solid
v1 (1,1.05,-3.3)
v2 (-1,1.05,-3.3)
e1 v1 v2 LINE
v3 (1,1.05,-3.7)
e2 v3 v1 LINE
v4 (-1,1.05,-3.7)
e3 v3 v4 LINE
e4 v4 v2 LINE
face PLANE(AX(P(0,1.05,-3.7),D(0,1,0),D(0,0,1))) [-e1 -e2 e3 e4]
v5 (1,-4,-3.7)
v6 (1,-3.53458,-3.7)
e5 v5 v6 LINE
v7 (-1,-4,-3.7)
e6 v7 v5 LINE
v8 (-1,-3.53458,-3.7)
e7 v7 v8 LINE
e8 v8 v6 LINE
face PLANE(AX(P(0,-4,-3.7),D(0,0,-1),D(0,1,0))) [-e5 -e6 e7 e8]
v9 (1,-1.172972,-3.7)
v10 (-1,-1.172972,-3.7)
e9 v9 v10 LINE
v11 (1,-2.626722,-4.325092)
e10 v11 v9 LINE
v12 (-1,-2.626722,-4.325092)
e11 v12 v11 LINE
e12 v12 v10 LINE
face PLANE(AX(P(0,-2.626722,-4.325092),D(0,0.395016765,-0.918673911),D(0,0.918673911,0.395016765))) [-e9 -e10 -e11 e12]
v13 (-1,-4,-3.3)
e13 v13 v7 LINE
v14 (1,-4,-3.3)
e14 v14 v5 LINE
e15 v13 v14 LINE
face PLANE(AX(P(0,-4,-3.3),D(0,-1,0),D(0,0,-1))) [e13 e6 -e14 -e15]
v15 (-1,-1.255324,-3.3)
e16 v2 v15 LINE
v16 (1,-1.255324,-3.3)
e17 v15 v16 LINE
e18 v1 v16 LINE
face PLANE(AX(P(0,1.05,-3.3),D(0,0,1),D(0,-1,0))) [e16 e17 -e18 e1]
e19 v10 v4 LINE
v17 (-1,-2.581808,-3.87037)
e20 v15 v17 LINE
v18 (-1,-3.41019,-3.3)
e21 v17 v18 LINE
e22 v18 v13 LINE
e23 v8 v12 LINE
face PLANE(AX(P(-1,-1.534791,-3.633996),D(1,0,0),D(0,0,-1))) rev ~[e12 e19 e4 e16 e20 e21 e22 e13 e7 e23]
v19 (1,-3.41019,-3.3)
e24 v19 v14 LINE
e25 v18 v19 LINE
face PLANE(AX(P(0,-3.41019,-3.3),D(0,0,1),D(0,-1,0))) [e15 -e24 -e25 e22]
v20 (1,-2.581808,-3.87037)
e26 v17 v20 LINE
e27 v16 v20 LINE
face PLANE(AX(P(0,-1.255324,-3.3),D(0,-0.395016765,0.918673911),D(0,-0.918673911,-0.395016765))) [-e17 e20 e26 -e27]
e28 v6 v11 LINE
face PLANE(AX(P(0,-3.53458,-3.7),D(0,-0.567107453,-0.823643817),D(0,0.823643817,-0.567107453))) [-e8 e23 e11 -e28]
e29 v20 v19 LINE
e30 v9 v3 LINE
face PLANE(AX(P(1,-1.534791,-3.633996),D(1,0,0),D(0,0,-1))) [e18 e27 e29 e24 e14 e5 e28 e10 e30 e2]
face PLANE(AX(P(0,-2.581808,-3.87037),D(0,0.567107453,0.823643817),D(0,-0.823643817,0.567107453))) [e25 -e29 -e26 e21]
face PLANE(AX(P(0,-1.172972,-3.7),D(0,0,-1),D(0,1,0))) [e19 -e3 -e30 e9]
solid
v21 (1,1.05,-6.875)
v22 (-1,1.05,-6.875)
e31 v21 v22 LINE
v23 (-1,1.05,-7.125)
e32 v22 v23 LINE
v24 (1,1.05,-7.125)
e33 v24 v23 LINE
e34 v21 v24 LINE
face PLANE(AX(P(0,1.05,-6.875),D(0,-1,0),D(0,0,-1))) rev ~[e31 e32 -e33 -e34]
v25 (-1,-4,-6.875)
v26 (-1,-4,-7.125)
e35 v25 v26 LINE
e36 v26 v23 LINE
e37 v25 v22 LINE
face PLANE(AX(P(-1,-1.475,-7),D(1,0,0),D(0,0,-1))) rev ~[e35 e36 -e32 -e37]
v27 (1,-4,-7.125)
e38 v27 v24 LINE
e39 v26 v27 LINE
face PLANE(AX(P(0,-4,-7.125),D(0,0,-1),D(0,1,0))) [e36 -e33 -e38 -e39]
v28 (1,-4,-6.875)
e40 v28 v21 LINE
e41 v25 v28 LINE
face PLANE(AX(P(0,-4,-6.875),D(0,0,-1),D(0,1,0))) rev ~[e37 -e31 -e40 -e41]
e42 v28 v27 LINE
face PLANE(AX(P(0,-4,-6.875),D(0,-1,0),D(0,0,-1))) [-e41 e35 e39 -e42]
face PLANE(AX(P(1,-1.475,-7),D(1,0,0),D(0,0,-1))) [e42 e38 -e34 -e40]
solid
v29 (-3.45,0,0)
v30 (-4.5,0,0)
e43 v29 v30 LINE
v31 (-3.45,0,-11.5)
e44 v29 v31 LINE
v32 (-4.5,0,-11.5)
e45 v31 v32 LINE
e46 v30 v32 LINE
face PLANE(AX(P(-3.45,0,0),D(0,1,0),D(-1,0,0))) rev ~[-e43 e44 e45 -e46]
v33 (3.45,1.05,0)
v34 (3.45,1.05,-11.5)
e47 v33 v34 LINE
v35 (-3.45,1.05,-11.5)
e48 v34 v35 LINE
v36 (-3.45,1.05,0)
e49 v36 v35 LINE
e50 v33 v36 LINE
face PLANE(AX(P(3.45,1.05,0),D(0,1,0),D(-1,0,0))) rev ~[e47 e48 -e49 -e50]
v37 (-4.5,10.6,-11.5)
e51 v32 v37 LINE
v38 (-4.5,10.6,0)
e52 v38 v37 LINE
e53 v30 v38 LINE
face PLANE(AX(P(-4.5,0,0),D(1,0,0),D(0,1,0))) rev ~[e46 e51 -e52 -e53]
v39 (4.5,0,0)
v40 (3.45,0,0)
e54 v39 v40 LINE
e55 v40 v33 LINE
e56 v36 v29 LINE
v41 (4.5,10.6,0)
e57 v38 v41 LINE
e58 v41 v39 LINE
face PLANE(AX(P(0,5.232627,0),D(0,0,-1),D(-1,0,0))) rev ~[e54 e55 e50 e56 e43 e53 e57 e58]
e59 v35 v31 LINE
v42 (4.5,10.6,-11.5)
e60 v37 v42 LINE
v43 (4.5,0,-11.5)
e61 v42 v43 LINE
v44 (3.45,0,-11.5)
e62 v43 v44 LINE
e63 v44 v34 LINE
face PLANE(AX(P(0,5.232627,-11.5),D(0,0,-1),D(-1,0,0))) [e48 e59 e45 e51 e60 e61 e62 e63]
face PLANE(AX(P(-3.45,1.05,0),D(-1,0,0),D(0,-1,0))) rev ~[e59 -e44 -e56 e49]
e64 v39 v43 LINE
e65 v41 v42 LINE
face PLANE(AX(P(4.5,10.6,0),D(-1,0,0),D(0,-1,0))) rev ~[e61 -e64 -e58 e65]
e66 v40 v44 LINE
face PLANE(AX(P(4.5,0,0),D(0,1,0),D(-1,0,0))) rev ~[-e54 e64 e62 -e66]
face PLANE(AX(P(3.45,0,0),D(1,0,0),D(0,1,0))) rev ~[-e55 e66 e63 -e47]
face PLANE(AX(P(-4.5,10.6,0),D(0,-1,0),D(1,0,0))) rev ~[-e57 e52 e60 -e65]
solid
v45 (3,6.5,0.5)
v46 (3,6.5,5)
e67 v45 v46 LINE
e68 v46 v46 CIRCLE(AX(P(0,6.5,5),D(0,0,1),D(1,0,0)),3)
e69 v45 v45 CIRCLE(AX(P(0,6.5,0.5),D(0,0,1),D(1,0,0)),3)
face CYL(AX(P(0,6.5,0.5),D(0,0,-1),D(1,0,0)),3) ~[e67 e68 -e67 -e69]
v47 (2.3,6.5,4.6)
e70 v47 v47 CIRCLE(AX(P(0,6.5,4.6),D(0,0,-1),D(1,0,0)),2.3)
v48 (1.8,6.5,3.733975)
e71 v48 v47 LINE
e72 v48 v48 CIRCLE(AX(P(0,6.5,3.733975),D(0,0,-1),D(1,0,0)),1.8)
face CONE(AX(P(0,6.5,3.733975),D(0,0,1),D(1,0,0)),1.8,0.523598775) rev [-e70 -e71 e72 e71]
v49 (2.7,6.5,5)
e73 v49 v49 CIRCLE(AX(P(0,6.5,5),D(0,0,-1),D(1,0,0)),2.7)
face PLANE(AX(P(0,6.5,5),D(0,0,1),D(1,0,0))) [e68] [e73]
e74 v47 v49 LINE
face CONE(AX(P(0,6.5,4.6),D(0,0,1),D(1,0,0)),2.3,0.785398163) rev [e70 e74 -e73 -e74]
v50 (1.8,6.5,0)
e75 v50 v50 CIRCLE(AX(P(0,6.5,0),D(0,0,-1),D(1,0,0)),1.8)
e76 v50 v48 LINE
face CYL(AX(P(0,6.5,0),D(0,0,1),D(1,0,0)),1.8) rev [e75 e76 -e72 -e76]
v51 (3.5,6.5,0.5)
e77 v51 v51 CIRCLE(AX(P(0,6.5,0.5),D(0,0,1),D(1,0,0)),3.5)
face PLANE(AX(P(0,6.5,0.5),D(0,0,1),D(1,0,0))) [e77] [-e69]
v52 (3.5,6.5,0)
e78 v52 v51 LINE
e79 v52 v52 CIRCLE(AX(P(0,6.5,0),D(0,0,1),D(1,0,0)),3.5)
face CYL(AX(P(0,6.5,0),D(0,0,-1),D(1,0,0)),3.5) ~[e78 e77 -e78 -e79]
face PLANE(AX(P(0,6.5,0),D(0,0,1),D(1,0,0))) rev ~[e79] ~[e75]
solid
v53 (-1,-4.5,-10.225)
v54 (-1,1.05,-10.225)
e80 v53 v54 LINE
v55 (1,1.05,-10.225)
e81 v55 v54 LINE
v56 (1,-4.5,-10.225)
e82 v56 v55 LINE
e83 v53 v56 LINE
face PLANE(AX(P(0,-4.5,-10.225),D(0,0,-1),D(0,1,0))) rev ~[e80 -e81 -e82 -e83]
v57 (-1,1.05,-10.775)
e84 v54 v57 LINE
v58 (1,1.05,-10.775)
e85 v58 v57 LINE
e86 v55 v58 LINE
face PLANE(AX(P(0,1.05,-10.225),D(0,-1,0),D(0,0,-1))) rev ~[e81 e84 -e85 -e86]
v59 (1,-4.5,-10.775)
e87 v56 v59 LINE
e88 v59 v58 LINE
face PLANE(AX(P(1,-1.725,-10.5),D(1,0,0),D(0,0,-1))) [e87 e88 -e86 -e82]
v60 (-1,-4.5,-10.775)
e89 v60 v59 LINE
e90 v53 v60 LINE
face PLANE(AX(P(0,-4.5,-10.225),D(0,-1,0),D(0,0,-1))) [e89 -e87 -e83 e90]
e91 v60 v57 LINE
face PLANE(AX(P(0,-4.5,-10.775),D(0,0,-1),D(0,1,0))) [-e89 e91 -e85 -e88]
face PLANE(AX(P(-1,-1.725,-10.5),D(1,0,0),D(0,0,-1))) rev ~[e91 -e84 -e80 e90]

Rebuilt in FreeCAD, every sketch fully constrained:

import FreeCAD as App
import Part
import Sketcher

V = App.Vector
Q = App.Units.Quantity

doc = App.newDocument("Part")
params = doc.addObject("Spreadsheet::Sheet", "Params")
for row, (alias, value) in enumerate([
    ("sketch1_width", "9 mm"),
    ("sketch1_width2", "6.9 mm"),
    ("sketch1_height", "10.6 mm"),
    ("pad1_length", "11.5 mm"),
    ("sketch2_diameter", "7 mm"),
    ("pad2_length", "0.5 mm"),
    ("sketch3_diameter", "6 mm"),
    ("pad3_length", "4.5 mm"),
    ("sketch4_height", "5 mm"),
    ("sketch4_length", "1 mm"),
    ("sketch4_width", "1.8 mm"),
    ("sketch4_width2", "2.7 mm"),
    ("groove_angle", "360 deg"),
    ("sketch5_height", "0.4 mm"),
    ("pad4_length", "2 mm"),
    ("sketch6_width", "5.05 mm"),
    ("sketch6_height", "0.25 mm"),
    ("pad5_length", "2 mm"),
    ("sketch7_width", "5.55 mm"),
    ("sketch7_height", "0.55 mm"),
    ("pad6_length", "2 mm"),
], start=1):
    params.set(f"A{row}", alias)
    params.set(f"B{row}", "=" + value)
    params.setAlias(f"B{row}", alias)

body = doc.addObject("PartDesign::Body", "Body")

sketch1 = body.newObject("Sketcher::SketchObject", "Sketch")
sketch1.AttachmentSupport = (doc.getObject("XY_Plane"), [""])
sketch1.MapMode = "FlatFace"
sketch1.addGeometry(Part.LineSegment(V(4.5, 10.6, 0), V(-4.5, 10.6, 0)), False)
sketch1.addGeometry(Part.LineSegment(V(-4.5, 10.6, 0), V(-4.5, 0, 0)), False)
sketch1.addGeometry(Part.LineSegment(V(-4.5, 0, 0), V(-3.45, 0, 0)), False)
sketch1.addGeometry(Part.LineSegment(V(-3.45, 0, 0), V(-3.45, 1.05, 0)), False)
sketch1.addGeometry(Part.LineSegment(V(-3.45, 1.05, 0), V(3.45, 1.05, 0)), False)
sketch1.addGeometry(Part.LineSegment(V(3.45, 1.05, 0), V(3.45, 0, 0)), False)
sketch1.addGeometry(Part.LineSegment(V(3.45, 0, 0), V(4.5, 0, 0)), False)
sketch1.addGeometry(Part.LineSegment(V(4.5, 0, 0), V(4.5, 10.6, 0)), False)
sketch1.addConstraint(Sketcher.Constraint("Coincident", 0, 2, 1, 1))
sketch1.addConstraint(Sketcher.Constraint("Coincident", 1, 2, 2, 1))
sketch1.addConstraint(Sketcher.Constraint("Coincident", 2, 2, 3, 1))
sketch1.addConstraint(Sketcher.Constraint("Coincident", 3, 2, 4, 1))
sketch1.addConstraint(Sketcher.Constraint("Coincident", 4, 2, 5, 1))
sketch1.addConstraint(Sketcher.Constraint("Coincident", 5, 2, 6, 1))
sketch1.addConstraint(Sketcher.Constraint("Coincident", 6, 2, 7, 1))
sketch1.addConstraint(Sketcher.Constraint("Coincident", 7, 2, 0, 1))
sketch1.addConstraint(Sketcher.Constraint("Horizontal", 0))
sketch1.addConstraint(Sketcher.Constraint("Vertical", 1))
sketch1.addConstraint(Sketcher.Constraint("Horizontal", 2))
sketch1.addConstraint(Sketcher.Constraint("Vertical", 3))
sketch1.addConstraint(Sketcher.Constraint("Horizontal", 4))
sketch1.addConstraint(Sketcher.Constraint("Vertical", 5))
sketch1.addConstraint(Sketcher.Constraint("Horizontal", 6))
sketch1.addConstraint(Sketcher.Constraint("Vertical", 7))
sketch1.addConstraint(Sketcher.Constraint("Symmetric", 2, 2, 5, 2, -1, 1))
sketch1.addConstraint(Sketcher.Constraint("Symmetric", 1, 2, 6, 2, -2))
sketch1.addConstraint(Sketcher.Constraint("Equal", 6, 3))
sketch1.addConstraint(Sketcher.Constraint("DistanceX", 0, 2, 0, 1, Q("9 mm")))
sketch1.addConstraint(Sketcher.Constraint("DistanceX", 4, 1, 4, 2, Q("6.9 mm")))
sketch1.addConstraint(Sketcher.Constraint("DistanceY", 1, 2, 1, 1, Q("10.6 mm")))
sketch1.setExpression("Constraints[19]", "Params.sketch1_width")
sketch1.setExpression("Constraints[20]", "Params.sketch1_width2")
sketch1.setExpression("Constraints[21]", "Params.sketch1_height")
pad1 = body.newObject("PartDesign::Pad", "Pad")
pad1.Profile = sketch1
pad1.setExpression("Length", "Params.pad1_length")
pad1.Reversed = True
body2 = doc.addObject("PartDesign::Body", "Body001")

sketch2 = body2.newObject("Sketcher::SketchObject", "Sketch001")
sketch2.AttachmentSupport = (doc.getObject("XY_Plane001"), [""])
sketch2.MapMode = "FlatFace"
sketch2.addGeometry(Part.Circle(V(0, 6.5, 0), V(0, 0, 1), 3.5), False)
sketch2.addConstraint(Sketcher.Constraint("PointOnObject", 0, 3, -2))
sketch2.addConstraint(Sketcher.Constraint("Diameter", 0, Q("7 mm")))
sketch2.addConstraint(Sketcher.Constraint("DistanceY", -1, 1, 0, 3, Q("6.5 mm")))
sketch2.setExpression("Constraints[1]", "Params.sketch2_diameter")
pad2 = body2.newObject("PartDesign::Pad", "Pad001")
pad2.Profile = sketch2
pad2.setExpression("Length", "Params.pad2_length")

sketch3 = body2.newObject("Sketcher::SketchObject", "Sketch002")
sketch3.AttachmentSupport = (doc.getObject("XY_Plane001"), [""])
sketch3.MapMode = "FlatFace"
sketch3.AttachmentOffset = App.Placement(V(0, 0, 0.5), App.Rotation())
sketch3.addGeometry(Part.Circle(V(0, 6.5, 0), V(0, 0, 1), 3), False)
sketch3.addConstraint(Sketcher.Constraint("PointOnObject", 0, 3, -2))
sketch3.addConstraint(Sketcher.Constraint("Diameter", 0, Q("6 mm")))
sketch3.addConstraint(Sketcher.Constraint("DistanceY", -1, 1, 0, 3, Q("6.5 mm")))
sketch3.setExpression("Constraints[1]", "Params.sketch3_diameter")
pad3 = body2.newObject("PartDesign::Pad", "Pad002")
pad3.Profile = sketch3
pad3.setExpression("Length", "Params.pad3_length")

sketch4 = body2.newObject("Sketcher::SketchObject", "Sketch003")
sketch4.AttachmentSupport = (doc.getObject("XZ_Plane001"), [""])
sketch4.MapMode = "FlatFace"
sketch4.AttachmentOffset = App.Placement(V(0, 0, -6.5), App.Rotation())
sketch4.addGeometry(Part.LineSegment(V(1.8, 0, 0), V(0, 0, 0)), False)
sketch4.addGeometry(Part.LineSegment(V(0, 0, 0), V(0, 5, 0)), False)
sketch4.addGeometry(Part.LineSegment(V(0, 5, 0), V(2.7, 5, 0)), False)
sketch4.addGeometry(Part.LineSegment(V(2.7, 5, 0), V(2.3, 4.6, 0)), False)
sketch4.addGeometry(Part.LineSegment(V(2.3, 4.6, 0), V(1.8, 3.733975, 0)), False)
sketch4.addGeometry(Part.LineSegment(V(1.8, 3.733975, 0), V(1.8, 0, 0)), False)
sketch4.addConstraint(Sketcher.Constraint("Coincident", 0, 2, 1, 1))
sketch4.addConstraint(Sketcher.Constraint("Coincident", 1, 2, 2, 1))
sketch4.addConstraint(Sketcher.Constraint("Coincident", 2, 2, 3, 1))
sketch4.addConstraint(Sketcher.Constraint("Coincident", 3, 2, 4, 1))
sketch4.addConstraint(Sketcher.Constraint("Coincident", 4, 2, 5, 1))
sketch4.addConstraint(Sketcher.Constraint("Coincident", 5, 2, 0, 1))
sketch4.addConstraint(Sketcher.Constraint("Horizontal", 0))
sketch4.addConstraint(Sketcher.Constraint("Vertical", 1))
sketch4.addConstraint(Sketcher.Constraint("Horizontal", 2))
sketch4.addConstraint(Sketcher.Constraint("Vertical", 5))
sketch4.addConstraint(Sketcher.Constraint("Coincident", 0, 2, -1, 1))
sketch4.addConstraint(Sketcher.Constraint("DistanceY", 1, 1, 1, 2, Q("5 mm")))
sketch4.addConstraint(Sketcher.Constraint("Angle", 3, Q("-135 deg")))
sketch4.addConstraint(Sketcher.Constraint("Angle", 4, Q("-120 deg")))
sketch4.addConstraint(Sketcher.Constraint("Distance", 4, Q("1 mm")))
sketch4.addConstraint(Sketcher.Constraint("DistanceX", 0, 2, 0, 1, Q("1.8 mm")))
sketch4.addConstraint(Sketcher.Constraint("DistanceX", 2, 1, 2, 2, Q("2.7 mm")))
sketch4.setExpression("Constraints[11]", "Params.sketch4_height")
sketch4.setExpression("Constraints[14]", "Params.sketch4_length")
sketch4.setExpression("Constraints[15]", "Params.sketch4_width")
sketch4.setExpression("Constraints[16]", "Params.sketch4_width2")
groove = body2.newObject("PartDesign::Groove", "Groove")
groove.Profile = sketch4
groove.ReferenceAxis = (sketch4, ["V_Axis"])
groove.setExpression("Angle", "Params.groove_angle")
body3 = doc.addObject("PartDesign::Body", "Body002")

sketch5 = body3.newObject("Sketcher::SketchObject", "Sketch004")
sketch5.AttachmentSupport = (doc.getObject("YZ_Plane002"), [""])
sketch5.MapMode = "FlatFace"
sketch5.addGeometry(Part.LineSegment(V(1.05, -3.3, 0), V(-1.255324, -3.3, 0)), False)
sketch5.addGeometry(Part.LineSegment(V(-1.255324, -3.3, 0), V(-2.581808, -3.87037, 0)), False)
sketch5.addGeometry(Part.LineSegment(V(-2.581808, -3.87037, 0), V(-3.41019, -3.3, 0)), False)
sketch5.addGeometry(Part.LineSegment(V(-3.41019, -3.3, 0), V(-4, -3.3, 0)), False)
sketch5.addGeometry(Part.LineSegment(V(-4, -3.3, 0), V(-4, -3.7, 0)), False)
sketch5.addGeometry(Part.LineSegment(V(-4, -3.7, 0), V(-3.53458, -3.7, 0)), False)
sketch5.addGeometry(Part.LineSegment(V(-3.53458, -3.7, 0), V(-2.626722, -4.325092, 0)), False)
sketch5.addGeometry(Part.LineSegment(V(-2.626722, -4.325092, 0), V(-1.172972, -3.7, 0)), False)
sketch5.addGeometry(Part.LineSegment(V(-1.172972, -3.7, 0), V(1.05, -3.7, 0)), False)
sketch5.addGeometry(Part.LineSegment(V(1.05, -3.7, 0), V(1.05, -3.3, 0)), False)
sketch5.addConstraint(Sketcher.Constraint("Coincident", 0, 2, 1, 1))
sketch5.addConstraint(Sketcher.Constraint("Coincident", 1, 2, 2, 1))
sketch5.addConstraint(Sketcher.Constraint("Coincident", 2, 2, 3, 1))
sketch5.addConstraint(Sketcher.Constraint("Coincident", 3, 2, 4, 1))
sketch5.addConstraint(Sketcher.Constraint("Coincident", 4, 2, 5, 1))
sketch5.addConstraint(Sketcher.Constraint("Coincident", 5, 2, 6, 1))
sketch5.addConstraint(Sketcher.Constraint("Coincident", 6, 2, 7, 1))
sketch5.addConstraint(Sketcher.Constraint("Coincident", 7, 2, 8, 1))
sketch5.addConstraint(Sketcher.Constraint("Coincident", 8, 2, 9, 1))
sketch5.addConstraint(Sketcher.Constraint("Coincident", 9, 2, 0, 1))
sketch5.addConstraint(Sketcher.Constraint("Horizontal", 0))
sketch5.addConstraint(Sketcher.Constraint("Horizontal", 3))
sketch5.addConstraint(Sketcher.Constraint("Vertical", 4))
sketch5.addConstraint(Sketcher.Constraint("Horizontal", 5))
sketch5.addConstraint(Sketcher.Constraint("Horizontal", 8))
sketch5.addConstraint(Sketcher.Constraint("Vertical", 9))
sketch5.addConstraint(Sketcher.Constraint("Parallel", 2, 6))
sketch5.addConstraint(Sketcher.Constraint("Parallel", 1, 7))
sketch5.addConstraint(Sketcher.Constraint("Horizontal", 0, 2, 2, 2))
sketch5.addConstraint(Sketcher.Constraint("Horizontal", 5, 2, 7, 2))
sketch5.addConstraint(Sketcher.Constraint("DistanceY", 4, 2, 4, 1, Q("0.4 mm")))
sketch5.addConstraint(Sketcher.Constraint("DistanceX", 3, 2, -1, 1, Q("4 mm")))
sketch5.addConstraint(Sketcher.Constraint("DistanceY", 0, 2, -1, 1, Q("3.3 mm")))
sketch5.addConstraint(Sketcher.Constraint("DistanceX", -1, 1, 8, 2, Q("1.05 mm")))
sketch5.addConstraint(Sketcher.Constraint("DistanceX", 3, 2, 3, 1, Q("0.58981 mm")))
sketch5.addConstraint(Sketcher.Constraint("DistanceX", 5, 1, 5, 2, Q("0.46542 mm")))
sketch5.addConstraint(Sketcher.Constraint("DistanceX", 8, 1, 8, 2, Q("2.222972 mm")))
sketch5.addConstraint(Sketcher.Constraint("DistanceX", 0, 2, 0, 1, Q("2.305324 mm")))
sketch5.addConstraint(Sketcher.Constraint("DistanceX", 1, 2, -1, 1, Q("2.581808 mm")))
sketch5.addConstraint(Sketcher.Constraint("DistanceY", 1, 2, -1, 1, Q("3.87037 mm")))
sketch5.setExpression("Constraints[20]", "Params.sketch5_height")
pad4 = body3.newObject("PartDesign::Pad", "Pad003")
pad4.Profile = sketch5
pad4.setExpression("Length", "Params.pad4_length")
pad4.Midplane = True
body4 = doc.addObject("PartDesign::Body", "Body003")

sketch6 = body4.newObject("Sketcher::SketchObject", "Sketch005")
sketch6.AttachmentSupport = (doc.getObject("YZ_Plane003"), [""])
sketch6.MapMode = "FlatFace"
sketch6.addGeometry(Part.LineSegment(V(1.05, -6.875, 0), V(-4, -6.875, 0)), False)
sketch6.addGeometry(Part.LineSegment(V(-4, -6.875, 0), V(-4, -7.125, 0)), False)
sketch6.addGeometry(Part.LineSegment(V(-4, -7.125, 0), V(1.05, -7.125, 0)), False)
sketch6.addGeometry(Part.LineSegment(V(1.05, -7.125, 0), V(1.05, -6.875, 0)), False)
sketch6.addConstraint(Sketcher.Constraint("Coincident", 0, 2, 1, 1))
sketch6.addConstraint(Sketcher.Constraint("Coincident", 1, 2, 2, 1))
sketch6.addConstraint(Sketcher.Constraint("Coincident", 2, 2, 3, 1))
sketch6.addConstraint(Sketcher.Constraint("Coincident", 3, 2, 0, 1))
sketch6.addConstraint(Sketcher.Constraint("Horizontal", 0))
sketch6.addConstraint(Sketcher.Constraint("Vertical", 1))
sketch6.addConstraint(Sketcher.Constraint("Horizontal", 2))
sketch6.addConstraint(Sketcher.Constraint("Vertical", 3))
sketch6.addConstraint(Sketcher.Constraint("DistanceX", 0, 2, -1, 1, Q("4 mm")))
sketch6.addConstraint(Sketcher.Constraint("DistanceX", 0, 2, 0, 1, Q("5.05 mm")))
sketch6.addConstraint(Sketcher.Constraint("DistanceY", 1, 2, 1, 1, Q("0.25 mm")))
sketch6.addConstraint(Sketcher.Constraint("DistanceY", 0, 2, -1, 1, Q("6.875 mm")))
sketch6.setExpression("Constraints[9]", "Params.sketch6_width")
sketch6.setExpression("Constraints[10]", "Params.sketch6_height")
pad5 = body4.newObject("PartDesign::Pad", "Pad004")
pad5.Profile = sketch6
pad5.setExpression("Length", "Params.pad5_length")
pad5.Midplane = True
body5 = doc.addObject("PartDesign::Body", "Body004")

sketch7 = body5.newObject("Sketcher::SketchObject", "Sketch006")
sketch7.AttachmentSupport = (doc.getObject("YZ_Plane004"), [""])
sketch7.MapMode = "FlatFace"
sketch7.addGeometry(Part.LineSegment(V(1.05, -10.225, 0), V(-4.5, -10.225, 0)), False)
sketch7.addGeometry(Part.LineSegment(V(-4.5, -10.225, 0), V(-4.5, -10.775, 0)), False)
sketch7.addGeometry(Part.LineSegment(V(-4.5, -10.775, 0), V(1.05, -10.775, 0)), False)
sketch7.addGeometry(Part.LineSegment(V(1.05, -10.775, 0), V(1.05, -10.225, 0)), False)
sketch7.addConstraint(Sketcher.Constraint("Coincident", 0, 2, 1, 1))
sketch7.addConstraint(Sketcher.Constraint("Coincident", 1, 2, 2, 1))
sketch7.addConstraint(Sketcher.Constraint("Coincident", 2, 2, 3, 1))
sketch7.addConstraint(Sketcher.Constraint("Coincident", 3, 2, 0, 1))
sketch7.addConstraint(Sketcher.Constraint("Horizontal", 0))
sketch7.addConstraint(Sketcher.Constraint("Vertical", 1))
sketch7.addConstraint(Sketcher.Constraint("Horizontal", 2))
sketch7.addConstraint(Sketcher.Constraint("Vertical", 3))
sketch7.addConstraint(Sketcher.Constraint("DistanceX", 0, 2, 0, 1, Q("5.55 mm")))
sketch7.addConstraint(Sketcher.Constraint("DistanceY", 1, 2, 1, 1, Q("0.55 mm")))
sketch7.addConstraint(Sketcher.Constraint("DistanceX", 0, 2, -1, 1, Q("4.5 mm")))
sketch7.addConstraint(Sketcher.Constraint("DistanceY", 0, 2, -1, 1, Q("10.225 mm")))
sketch7.setExpression("Constraints[8]", "Params.sketch7_width")
sketch7.setExpression("Constraints[9]", "Params.sketch7_height")
pad6 = body5.newObject("PartDesign::Pad", "Pad005")
pad6.Profile = sketch7
pad6.setExpression("Length", "Params.pad6_length")
pad6.Midplane = True

doc.recompute()
